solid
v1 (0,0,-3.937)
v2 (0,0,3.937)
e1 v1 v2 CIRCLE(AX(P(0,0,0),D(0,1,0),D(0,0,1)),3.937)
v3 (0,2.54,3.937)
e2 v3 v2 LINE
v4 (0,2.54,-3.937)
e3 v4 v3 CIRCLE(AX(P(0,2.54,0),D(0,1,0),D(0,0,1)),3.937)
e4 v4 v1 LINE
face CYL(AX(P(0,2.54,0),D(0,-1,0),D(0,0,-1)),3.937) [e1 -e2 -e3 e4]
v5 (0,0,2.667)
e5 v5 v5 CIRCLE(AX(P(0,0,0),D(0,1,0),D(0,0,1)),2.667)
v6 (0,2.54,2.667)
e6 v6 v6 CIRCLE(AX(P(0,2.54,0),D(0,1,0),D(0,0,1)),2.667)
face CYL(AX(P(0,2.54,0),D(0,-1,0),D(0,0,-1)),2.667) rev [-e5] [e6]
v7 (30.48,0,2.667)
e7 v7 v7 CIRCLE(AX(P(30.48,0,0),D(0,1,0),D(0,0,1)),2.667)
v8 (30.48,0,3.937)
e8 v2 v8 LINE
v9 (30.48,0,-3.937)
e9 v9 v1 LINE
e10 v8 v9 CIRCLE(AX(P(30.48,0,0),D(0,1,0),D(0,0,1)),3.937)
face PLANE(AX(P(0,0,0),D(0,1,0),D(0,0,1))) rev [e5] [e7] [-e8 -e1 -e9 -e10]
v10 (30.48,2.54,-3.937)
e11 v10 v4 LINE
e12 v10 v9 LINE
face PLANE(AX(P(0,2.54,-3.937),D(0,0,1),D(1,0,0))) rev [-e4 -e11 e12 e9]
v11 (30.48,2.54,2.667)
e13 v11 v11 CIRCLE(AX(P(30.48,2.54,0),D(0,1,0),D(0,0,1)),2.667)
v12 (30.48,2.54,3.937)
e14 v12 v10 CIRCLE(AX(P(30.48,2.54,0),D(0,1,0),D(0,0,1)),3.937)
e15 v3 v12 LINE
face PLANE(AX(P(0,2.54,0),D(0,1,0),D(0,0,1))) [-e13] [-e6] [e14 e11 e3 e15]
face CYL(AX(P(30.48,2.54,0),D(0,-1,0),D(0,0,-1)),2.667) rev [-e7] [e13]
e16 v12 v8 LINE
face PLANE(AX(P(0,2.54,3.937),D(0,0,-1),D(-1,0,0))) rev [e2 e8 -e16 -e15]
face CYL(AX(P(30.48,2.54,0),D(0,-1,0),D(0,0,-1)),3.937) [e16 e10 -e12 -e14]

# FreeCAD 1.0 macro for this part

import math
import FreeCAD as App
import Part
import Sketcher
from FreeCAD import Vector
Q = App.Units.Quantity

doc = App.newDocument("Part")
body = doc.addObject("PartDesign::Body", "Body")

# Sketch on XZ plane
sketch1 = body.newObject("Sketcher::SketchObject", "Sketch")
sketch1.AttachmentSupport = (doc.getObject("XZ_Plane"), [""])
sketch1.MapMode = "FlatFace"
sketch1.addGeometry([
    Part.LineSegment(Vector(30.5, -3.9, 0), Vector(0, -3.9, 0)),  # 0
    Part.ArcOfCircle(Part.Circle(Vector(0, 0, 0), Vector(0, 0, 1), 3.9), math.radians(90), math.radians(270)),  # 1
    Part.LineSegment(Vector(0, 3.9, 0), Vector(30.5, 3.9, 0)),  # 2
    Part.ArcOfCircle(Part.Circle(Vector(30.5, 0, 0), Vector(0, 0, 1), 3.9), math.radians(-90), math.radians(90)),  # 3
    Part.Circle(Vector(30.5, 0, 0), Vector(0, 0, 1), 2.7),  # 4
    Part.Circle(Vector(0, 0, 0), Vector(0, 0, 1), 2.7),  # 5
], False)
sketch1.addConstraint([
    Sketcher.Constraint("Tangent", 0, 2, 1, 2),
    Sketcher.Constraint("Tangent", 1, 1, 2, 1),
    Sketcher.Constraint("Tangent", 2, 2, 3, 2),
    Sketcher.Constraint("Tangent", 3, 1, 0, 1),
    Sketcher.Constraint("Horizontal", 0),
    Sketcher.Constraint("Horizontal", 2),
    Sketcher.Constraint("Coincident", 1, 3, -1, 1),
    Sketcher.Constraint("Coincident", 5, 3, -1, 1),
    Sketcher.Constraint("Coincident", 4, 3, 3, 3),
    Sketcher.Constraint("Equal", 4, 5),
    Sketcher.Constraint("Diameter", 4, Q("0.21 in")),
    Sketcher.Constraint("DistanceX", 0, 2, 0, 1, Q("1.2 in")),
    Sketcher.Constraint("Radius", 1, Q("0.155 in")),
])
pad1 = body.newObject("PartDesign::Pad", "Pad")
pad1.Profile = sketch1
pad1.Length = Q("0.1 in")
pad1.Reversed = True

doc.recompute()
